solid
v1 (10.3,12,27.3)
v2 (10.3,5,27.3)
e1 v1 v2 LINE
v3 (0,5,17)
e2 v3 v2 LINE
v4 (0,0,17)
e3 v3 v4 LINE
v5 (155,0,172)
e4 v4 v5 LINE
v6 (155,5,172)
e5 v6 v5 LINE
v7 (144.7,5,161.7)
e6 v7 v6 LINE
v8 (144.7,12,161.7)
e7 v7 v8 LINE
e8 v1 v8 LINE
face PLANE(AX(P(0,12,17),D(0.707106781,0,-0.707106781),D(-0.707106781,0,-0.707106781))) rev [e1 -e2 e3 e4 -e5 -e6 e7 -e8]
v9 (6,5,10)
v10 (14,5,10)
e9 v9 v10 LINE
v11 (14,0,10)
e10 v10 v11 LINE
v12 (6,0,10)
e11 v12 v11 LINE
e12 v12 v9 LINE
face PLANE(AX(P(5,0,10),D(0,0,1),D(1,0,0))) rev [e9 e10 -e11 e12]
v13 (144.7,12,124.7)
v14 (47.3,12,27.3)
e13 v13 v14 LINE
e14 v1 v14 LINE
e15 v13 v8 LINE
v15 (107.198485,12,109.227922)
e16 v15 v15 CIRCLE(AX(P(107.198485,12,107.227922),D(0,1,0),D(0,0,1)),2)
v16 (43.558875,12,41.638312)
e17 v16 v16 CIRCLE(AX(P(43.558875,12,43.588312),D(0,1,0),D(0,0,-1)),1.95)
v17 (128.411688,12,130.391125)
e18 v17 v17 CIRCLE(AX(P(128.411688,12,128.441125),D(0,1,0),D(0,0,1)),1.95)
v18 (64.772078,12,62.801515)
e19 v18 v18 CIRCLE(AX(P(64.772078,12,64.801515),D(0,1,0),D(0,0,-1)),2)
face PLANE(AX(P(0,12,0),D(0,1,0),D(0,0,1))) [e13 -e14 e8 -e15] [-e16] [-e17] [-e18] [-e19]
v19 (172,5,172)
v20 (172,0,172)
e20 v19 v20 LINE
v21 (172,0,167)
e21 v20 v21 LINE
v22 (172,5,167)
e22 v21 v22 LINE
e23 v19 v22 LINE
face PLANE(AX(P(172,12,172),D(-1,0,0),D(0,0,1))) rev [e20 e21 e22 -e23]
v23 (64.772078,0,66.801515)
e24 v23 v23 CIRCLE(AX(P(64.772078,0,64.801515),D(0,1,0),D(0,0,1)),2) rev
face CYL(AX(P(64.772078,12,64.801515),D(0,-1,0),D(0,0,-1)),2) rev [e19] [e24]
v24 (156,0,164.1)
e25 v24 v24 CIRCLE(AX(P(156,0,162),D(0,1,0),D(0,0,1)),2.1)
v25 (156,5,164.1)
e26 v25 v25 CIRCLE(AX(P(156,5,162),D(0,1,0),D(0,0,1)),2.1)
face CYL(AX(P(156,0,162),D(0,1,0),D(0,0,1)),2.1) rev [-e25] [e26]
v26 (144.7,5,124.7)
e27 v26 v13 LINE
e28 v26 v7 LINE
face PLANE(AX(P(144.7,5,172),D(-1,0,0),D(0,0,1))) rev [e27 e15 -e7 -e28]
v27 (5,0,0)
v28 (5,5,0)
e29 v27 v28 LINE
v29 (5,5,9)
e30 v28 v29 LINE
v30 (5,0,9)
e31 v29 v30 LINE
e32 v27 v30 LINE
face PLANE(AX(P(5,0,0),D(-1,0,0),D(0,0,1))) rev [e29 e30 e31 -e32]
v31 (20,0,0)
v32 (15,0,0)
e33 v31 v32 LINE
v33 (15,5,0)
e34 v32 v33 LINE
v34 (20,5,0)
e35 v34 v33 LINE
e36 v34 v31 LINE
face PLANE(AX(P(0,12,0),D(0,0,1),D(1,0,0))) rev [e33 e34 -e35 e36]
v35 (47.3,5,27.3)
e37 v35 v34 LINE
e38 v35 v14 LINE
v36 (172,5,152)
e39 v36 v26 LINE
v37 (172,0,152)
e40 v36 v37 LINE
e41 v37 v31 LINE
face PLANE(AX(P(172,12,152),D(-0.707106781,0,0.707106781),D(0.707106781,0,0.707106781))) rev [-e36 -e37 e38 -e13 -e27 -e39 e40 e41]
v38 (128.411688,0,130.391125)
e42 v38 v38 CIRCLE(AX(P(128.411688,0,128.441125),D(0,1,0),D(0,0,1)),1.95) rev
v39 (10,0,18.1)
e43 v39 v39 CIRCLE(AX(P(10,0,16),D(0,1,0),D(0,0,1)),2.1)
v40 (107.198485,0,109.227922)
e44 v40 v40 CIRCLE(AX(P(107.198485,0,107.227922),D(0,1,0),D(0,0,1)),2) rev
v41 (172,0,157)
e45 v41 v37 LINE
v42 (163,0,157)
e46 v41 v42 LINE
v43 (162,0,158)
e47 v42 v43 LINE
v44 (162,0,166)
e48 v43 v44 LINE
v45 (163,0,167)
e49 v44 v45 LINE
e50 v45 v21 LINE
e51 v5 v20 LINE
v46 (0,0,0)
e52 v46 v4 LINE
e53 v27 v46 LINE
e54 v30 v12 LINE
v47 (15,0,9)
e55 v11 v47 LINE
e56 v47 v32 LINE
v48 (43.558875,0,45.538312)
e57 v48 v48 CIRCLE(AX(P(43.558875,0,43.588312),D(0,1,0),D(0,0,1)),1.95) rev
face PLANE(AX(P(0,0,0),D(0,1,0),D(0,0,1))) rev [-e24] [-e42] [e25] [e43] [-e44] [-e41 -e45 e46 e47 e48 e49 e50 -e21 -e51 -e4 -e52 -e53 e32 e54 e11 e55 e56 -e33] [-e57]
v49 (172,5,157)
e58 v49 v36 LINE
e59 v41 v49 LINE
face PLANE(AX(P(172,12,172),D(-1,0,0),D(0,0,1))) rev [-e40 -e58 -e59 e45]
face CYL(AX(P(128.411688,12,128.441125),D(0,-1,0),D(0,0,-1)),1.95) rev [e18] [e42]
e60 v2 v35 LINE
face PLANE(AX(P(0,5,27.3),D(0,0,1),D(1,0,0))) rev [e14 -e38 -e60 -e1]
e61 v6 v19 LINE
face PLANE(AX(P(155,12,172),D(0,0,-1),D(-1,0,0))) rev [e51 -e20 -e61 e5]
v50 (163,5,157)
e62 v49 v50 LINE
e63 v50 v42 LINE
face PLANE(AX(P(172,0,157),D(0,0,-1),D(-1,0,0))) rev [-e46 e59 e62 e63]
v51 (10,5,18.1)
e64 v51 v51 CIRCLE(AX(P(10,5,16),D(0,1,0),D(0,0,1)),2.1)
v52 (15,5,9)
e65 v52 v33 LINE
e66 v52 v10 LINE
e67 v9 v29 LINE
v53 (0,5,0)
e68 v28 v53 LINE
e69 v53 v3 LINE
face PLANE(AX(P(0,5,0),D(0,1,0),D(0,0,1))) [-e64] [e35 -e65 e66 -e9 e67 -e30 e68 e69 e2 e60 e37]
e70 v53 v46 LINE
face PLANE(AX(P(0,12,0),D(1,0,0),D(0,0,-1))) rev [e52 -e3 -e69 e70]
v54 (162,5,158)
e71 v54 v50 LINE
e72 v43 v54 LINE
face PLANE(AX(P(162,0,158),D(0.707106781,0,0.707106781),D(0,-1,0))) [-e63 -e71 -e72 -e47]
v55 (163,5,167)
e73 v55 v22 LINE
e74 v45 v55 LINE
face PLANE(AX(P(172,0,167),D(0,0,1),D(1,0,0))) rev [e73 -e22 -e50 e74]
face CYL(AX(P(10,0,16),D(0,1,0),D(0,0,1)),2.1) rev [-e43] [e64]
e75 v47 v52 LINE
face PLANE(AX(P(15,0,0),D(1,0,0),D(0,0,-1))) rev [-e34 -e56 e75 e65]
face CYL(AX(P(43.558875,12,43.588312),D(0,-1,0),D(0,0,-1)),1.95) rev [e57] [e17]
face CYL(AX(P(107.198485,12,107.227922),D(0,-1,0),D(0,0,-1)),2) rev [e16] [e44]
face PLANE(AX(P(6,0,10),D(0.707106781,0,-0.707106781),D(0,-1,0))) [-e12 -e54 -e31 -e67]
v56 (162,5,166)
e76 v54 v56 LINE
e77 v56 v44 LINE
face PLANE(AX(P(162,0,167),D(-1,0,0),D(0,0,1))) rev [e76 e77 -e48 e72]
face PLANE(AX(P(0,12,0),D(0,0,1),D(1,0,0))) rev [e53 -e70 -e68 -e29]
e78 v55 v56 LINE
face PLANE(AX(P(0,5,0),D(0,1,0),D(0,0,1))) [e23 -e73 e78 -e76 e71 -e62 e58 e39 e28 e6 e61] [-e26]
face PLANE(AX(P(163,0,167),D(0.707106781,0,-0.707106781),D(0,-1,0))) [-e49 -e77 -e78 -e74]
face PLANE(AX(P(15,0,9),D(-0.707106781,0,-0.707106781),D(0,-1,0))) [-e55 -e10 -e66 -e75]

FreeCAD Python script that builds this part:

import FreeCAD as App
import Part
import Sketcher

V = App.Vector


def edges_at(feature, points):
    """Names of the edges that pass closest to the given points."""
    edges = feature.Shape.Edges
    near = lambda p: min(range(len(edges)), key=lambda i: edges[i].distToShape(Part.Vertex(*p))[0])
    return sorted({f"Edge{near(p) + 1}" for p in points})

doc = App.newDocument("Part")
body = doc.addObject("PartDesign::Body", "Body")

# Sketch on XZ plane
sketch1 = body.newObject("Sketcher::SketchObject", "Sketch")
sketch1.AttachmentSupport = (doc.getObject("XZ_Plane"), [""])
sketch1.MapMode = "FlatFace"
sketch1.addGeometry([
    Part.LineSegment(V(20, 0, 0), V(0, 0, 0)),  # 0
    Part.LineSegment(V(0, 0, 0), V(0, 17, 0)),  # 1
    Part.LineSegment(V(0, 17, 0), V(155, 172, 0)),  # 2
    Part.LineSegment(V(155, 172, 0), V(172, 172, 0)),  # 3
    Part.LineSegment(V(172, 172, 0), V(172, 152, 0)),  # 4
    Part.LineSegment(V(172, 152, 0), V(20, 0, 0)),  # 5
], False)
sketch1.addConstraint([
    Sketcher.Constraint("Coincident", 0, 2, 1, 1),
    Sketcher.Constraint("Coincident", 1, 2, 2, 1),
    Sketcher.Constraint("Coincident", 2, 2, 3, 1),
    Sketcher.Constraint("Coincident", 3, 2, 4, 1),
    Sketcher.Constraint("Coincident", 4, 2, 5, 1),
    Sketcher.Constraint("Coincident", 5, 2, 0, 1),
    Sketcher.Constraint("Horizontal", 0),
    Sketcher.Constraint("Vertical", 1),
    Sketcher.Constraint("Horizontal", 3),
    Sketcher.Constraint("Vertical", 4),
    Sketcher.Constraint("Coincident", 0, 2, -1, 1),
    Sketcher.Constraint("Parallel", 2, 5),
    Sketcher.Constraint("Equal", 3, 1),
    Sketcher.Constraint("Equal", 0, 4),
    Sketcher.Constraint("DistanceX", 0, 2, 0, 1, 20.0),
    Sketcher.Constraint("DistanceX", 3, 1, 3, 2, 17.0),
    Sketcher.Constraint("DistanceX", -1, 1, 2, 2, 155.0),
])
pad1 = body.newObject("PartDesign::Pad", "Pad")
pad1.Profile = sketch1
pad1.Length = 12
pad1.Reversed = True

# Sketch on XZ plane
sketch2 = body.newObject("Sketcher::SketchObject", "Sketch001")
sketch2.AttachmentSupport = (doc.getObject("XZ_Plane"), [""])
sketch2.MapMode = "FlatFace"
sketch2.AttachmentOffset = App.Placement(V(0, 0, -12), App.Rotation())
sketch2.addGeometry([
    Part.LineSegment(V(0, 0, 0), V(0, 27, 0)),  # 0
    Part.LineSegment(V(0, 27, 0), V(47, 27, 0)),  # 1
    Part.LineSegment(V(47, 27, 0), V(47, 0, 0)),  # 2
    Part.LineSegment(V(47, 0, 0), V(0, 0, 0)),  # 3
    Part.LineSegment(V(145, 125, 0), V(145, 172, 0)),  # 4
    Part.LineSegment(V(145, 172, 0), V(172, 172, 0)),  # 5
    Part.LineSegment(V(172, 172, 0), V(172, 125, 0)),  # 6
    Part.LineSegment(V(172, 125, 0), V(145, 125, 0)),  # 7
], False)
sketch2.addConstraint([
    Sketcher.Constraint("Coincident", 0, 2, 1, 1),
    Sketcher.Constraint("Coincident", 1, 2, 2, 1),
    Sketcher.Constraint("Coincident", 2, 2, 3, 1),
    Sketcher.Constraint("Coincident", 3, 2, 0, 1),
    Sketcher.Constraint("Coincident", 4, 2, 5, 1),
    Sketcher.Constraint("Coincident", 5, 2, 6, 1),
    Sketcher.Constraint("Coincident", 6, 2, 7, 1),
    Sketcher.Constraint("Coincident", 7, 2, 4, 1),
    Sketcher.Constraint("Vertical", 0),
    Sketcher.Constraint("Horizontal", 1),
    Sketcher.Constraint("Vertical", 2),
    Sketcher.Constraint("Horizontal", 3),
    Sketcher.Constraint("Vertical", 4),
    Sketcher.Constraint("Horizontal", 5),
    Sketcher.Constraint("Vertical", 6),
    Sketcher.Constraint("Horizontal", 7),
    Sketcher.Constraint("Coincident", 3, 2, -1, 1),
    Sketcher.Constraint("Equal", 7, 0),
    Sketcher.Constraint("Equal", 3, 4),
    Sketcher.Constraint("DistanceX", 1, 1, 1, 2, 47.3),
    Sketcher.Constraint("DistanceX", 5, 1, 5, 2, 27.3),
    Sketcher.Constraint("DistanceY", -1, 1, 4, 2, 172.0),
    Sketcher.Constraint("DistanceX", -1, 1, 5, 2, 172.0),
])
pocket1 = body.newObject("PartDesign::Pocket", "Pocket")
pocket1.Profile = sketch2
pocket1.Length = 7
pocket1.Reversed = True

# Sketch on XZ plane
sketch3 = body.newObject("Sketcher::SketchObject", "Sketch002")
sketch3.AttachmentSupport = (doc.getObject("XZ_Plane"), [""])
sketch3.MapMode = "FlatFace"
sketch3.AttachmentOffset = App.Placement(V(0, 0, -12), App.Rotation())
sketch3.addGeometry([
    Part.Circle(V(10, 16, 0), V(0, 0, 1), 2.1),
    Part.Circle(V(156, 162, 0), V(0, 0, 1), 2.1),
], False)
sketch3.addConstraint([
    Sketcher.Constraint("Equal", 0, 1),
    Sketcher.Constraint("Diameter", 0, 4.2),
    Sketcher.Constraint("DistanceX", -1, 1, 0, 3, 10.0),
    Sketcher.Constraint("DistanceY", -1, 1, 0, 3, 16.0),
    Sketcher.Constraint("DistanceX", -1, 1, 1, 3, 156.0),
    Sketcher.Constraint("DistanceY", -1, 1, 1, 3, 162.0),
])
pocket2 = body.newObject("PartDesign::Pocket", "Pocket001")
pocket2.Profile = sketch3
pocket2.Type = "ThroughAll"
pocket2.Reversed = True

# Sketch on XZ plane
sketch4 = body.newObject("Sketcher::SketchObject", "Sketch003")
sketch4.AttachmentSupport = (doc.getObject("XZ_Plane"), [""])
sketch4.MapMode = "FlatFace"
sketch4.addGeometry([
    Part.Circle(V(128.4, 128.4, 0), V(0, 0, 1), 1.9),
    Part.Circle(V(107.2, 107.2, 0), V(0, 0, 1), 2),
    Part.Circle(V(43.6, 43.6, 0), V(0, 0, 1), 1.9),
    Part.Circle(V(64.8, 64.8, 0), V(0, 0, 1), 2),
], False)
sketch4.addConstraint([
    Sketcher.Constraint("Equal", 0, 2),
    Sketcher.Constraint("Equal", 1, 3),
    Sketcher.Constraint("Diameter", 1, 4.0),
    Sketcher.Constraint("Diameter", 0, 3.9),
    Sketcher.Constraint("DistanceX", -1, 1, 0, 3, 128.411688),
    Sketcher.Constraint("DistanceY", -1, 1, 2, 3, 43.588312),
    Sketcher.Constraint("DistanceX", 2, 3, 1, 3, 63.63961),
    Sketcher.Constraint("DistanceY", 2, 3, 1, 3, 63.63961),
    Sketcher.Constraint("DistanceX", 3, 3, 0, 3, 63.63961),
    Sketcher.Constraint("DistanceY", 3, 3, 0, 3, 63.63961),
    Sketcher.Constraint("DistanceY", -1, 1, 0, 3, 128.441125),
    Sketcher.Constraint("DistanceX", -1, 1, 1, 3, 107.198485),
])
pocket3 = body.newObject("PartDesign::Pocket", "Pocket002")
pocket3.Profile = sketch4
pocket3.Type = "ThroughAll"
pocket3.Midplane = True

# Sketch on XZ plane
sketch5 = body.newObject("Sketcher::SketchObject", "Sketch004")
sketch5.AttachmentSupport = (doc.getObject("XZ_Plane"), [""])
sketch5.MapMode = "FlatFace"
sketch5.AttachmentOffset = App.Placement(V(0, 0, -5), App.Rotation())
sketch5.addGeometry([
    Part.LineSegment(V(5, 0, 0), V(5, 10, 0)),  # 0
    Part.LineSegment(V(5, 10, 0), V(15, 10, 0)),  # 1
    Part.LineSegment(V(15, 10, 0), V(15, 0, 0)),  # 2
    Part.LineSegment(V(15, 0, 0), V(5, 0, 0)),  # 3
    Part.LineSegment(V(162, 157, 0), V(162, 167, 0)),  # 4
    Part.LineSegment(V(162, 167, 0), V(172, 167, 0)),  # 5
    Part.LineSegment(V(172, 167, 0), V(172, 157, 0)),  # 6
    Part.LineSegment(V(172, 157, 0), V(162, 157, 0)),  # 7
], False)
sketch5.addConstraint([
    Sketcher.Constraint("Coincident", 0, 2, 1, 1),
    Sketcher.Constraint("Coincident", 1, 2, 2, 1),
    Sketcher.Constraint("Coincident", 2, 2, 3, 1),
    Sketcher.Constraint("Coincident", 3, 2, 0, 1),
    Sketcher.Constraint("Coincident", 4, 2, 5, 1),
    Sketcher.Constraint("Coincident", 5, 2, 6, 1),
    Sketcher.Constraint("Coincident", 6, 2, 7, 1),
    Sketcher.Constraint("Coincident", 7, 2, 4, 1),
    Sketcher.Constraint("Vertical", 0),
    Sketcher.Constraint("Horizontal", 1),
    Sketcher.Constraint("Vertical", 2),
    Sketcher.Constraint("Horizontal", 3),
    Sketcher.Constraint("Vertical", 4),
    Sketcher.Constraint("Horizontal", 5),
    Sketcher.Constraint("Vertical", 6),
    Sketcher.Constraint("Horizontal", 7),
    Sketcher.Constraint("PointOnObject", 2, 2, -1),
    Sketcher.Constraint("Equal", 3, 5),
    Sketcher.Constraint("Equal", 7, 0),
    Sketcher.Constraint("Equal", 2, 4),
    Sketcher.Constraint("DistanceX", 1, 1, 1, 2, 10.0),
    Sketcher.Constraint("DistanceX", -1, 1, 0, 2, 5.0),
    Sketcher.Constraint("DistanceX", -1, 1, 4, 2, 162.0),
    Sketcher.Constraint("DistanceY", -1, 1, 4, 2, 167.0),
])
pocket4 = body.newObject("PartDesign::Pocket", "Pocket003")
pocket4.Profile = sketch5
pocket4.Type = "ThroughAll"
pocket4.Reversed = True
doc.recompute()

chamfer = body.newObject("PartDesign::Chamfer", "Chamfer")
chamfer.Base = (pocket4, edges_at(pocket4, [
    (5, 2.5, 10),
    (15, 2.5, 10),
    (162, 2.5, 167),
    (162, 2.5, 157),
]))
chamfer.Size = 1

doc.recompute()
